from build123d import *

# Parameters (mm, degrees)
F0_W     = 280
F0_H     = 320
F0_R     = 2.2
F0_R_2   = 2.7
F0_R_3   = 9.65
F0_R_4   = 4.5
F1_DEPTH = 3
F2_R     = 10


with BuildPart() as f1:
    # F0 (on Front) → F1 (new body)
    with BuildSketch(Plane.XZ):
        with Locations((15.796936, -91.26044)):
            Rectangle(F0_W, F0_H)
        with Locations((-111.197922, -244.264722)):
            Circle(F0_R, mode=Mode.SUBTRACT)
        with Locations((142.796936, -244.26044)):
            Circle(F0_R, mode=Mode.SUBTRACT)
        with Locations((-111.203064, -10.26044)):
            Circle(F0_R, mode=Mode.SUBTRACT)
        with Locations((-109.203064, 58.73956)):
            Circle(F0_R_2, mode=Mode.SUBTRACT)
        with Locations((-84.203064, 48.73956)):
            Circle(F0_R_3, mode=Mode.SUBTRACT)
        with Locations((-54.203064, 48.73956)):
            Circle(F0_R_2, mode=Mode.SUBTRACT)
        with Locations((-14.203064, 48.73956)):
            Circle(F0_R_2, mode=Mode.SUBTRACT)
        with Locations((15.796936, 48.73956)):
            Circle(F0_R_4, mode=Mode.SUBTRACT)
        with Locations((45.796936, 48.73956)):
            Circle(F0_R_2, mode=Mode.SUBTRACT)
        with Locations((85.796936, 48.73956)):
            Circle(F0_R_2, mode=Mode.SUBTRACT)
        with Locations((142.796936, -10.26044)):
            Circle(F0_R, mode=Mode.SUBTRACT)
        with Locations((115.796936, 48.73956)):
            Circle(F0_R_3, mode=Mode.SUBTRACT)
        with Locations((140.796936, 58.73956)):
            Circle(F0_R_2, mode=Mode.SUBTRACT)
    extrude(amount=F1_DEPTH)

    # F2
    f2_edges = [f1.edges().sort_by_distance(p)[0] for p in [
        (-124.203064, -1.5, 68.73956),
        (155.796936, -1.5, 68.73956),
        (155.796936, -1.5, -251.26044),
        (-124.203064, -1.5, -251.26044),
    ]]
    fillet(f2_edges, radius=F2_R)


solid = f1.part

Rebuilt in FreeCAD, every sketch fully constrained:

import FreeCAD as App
import Part
import Sketcher
from FreeCAD import Vector


def edges_at(feature, points):
    """Names of the edges that pass closest to the given points."""
    edges = feature.Shape.Edges
    near = lambda p: min(range(len(edges)), key=lambda i: edges[i].distToShape(Part.Vertex(*p))[0])
    return sorted({f"Edge{near(p) + 1}" for p in points})

doc = App.newDocument("Part")
params = doc.addObject("Spreadsheet::Sheet", "Params")
for row, (alias, value) in enumerate([
    ("sketch1_diameter", "9 mm"),
    ("sketch1_diameter2", "4.4 mm"),
    ("sketch1_diameter3", "5.4 mm"),
    ("sketch1_diameter4", "19.3 mm"),
    ("sketch1_width", "280 mm"),
    ("pad1_length", "3 mm"),
    ("fillet_radius", "10 mm"),
], start=1):
    params.set(f"A{row}", alias)
    params.set(f"B{row}", "=" + value)
    params.setAlias(f"B{row}", alias)

body = doc.addObject("PartDesign::Body", "Body")

# Sketch on XZ plane
sketch1 = doc.addObject("Sketcher::SketchObject", "Sketch")
body.addObject(sketch1)
sketch1.AttachmentSupport = (doc.XZ_Plane, [""])
sketch1.MapMode = "FlatFace"
sketch1.addGeometry([
    Part.LineSegment(Vector(-124.2, 68.7, 0), Vector(-124.2, -251.3, 0)),  # 0
    Part.LineSegment(Vector(-124.2, -251.3, 0), Vector(155.8, -251.3, 0)),  # 1
    Part.LineSegment(Vector(155.8, -251.3, 0), Vector(155.8, 68.7, 0)),  # 2
    Part.LineSegment(Vector(155.8, 68.7, 0), Vector(-124.2, 68.7, 0)),  # 3
    Part.Circle(Vector(-111.2, -244.3, 0), Vector(0, 0, 1), 2.2),  # 4
    Part.Circle(Vector(142.8, -244.3, 0), Vector(0, 0, 1), 2.2),  # 5
    Part.Circle(Vector(-111.2, -10.3, 0), Vector(0, 0, 1), 2.2),  # 6
    Part.Circle(Vector(-109.2, 58.7, 0), Vector(0, 0, 1), 2.7),  # 7
    Part.Circle(Vector(-84.2, 48.7, 0), Vector(0, 0, 1), 9.7),  # 8
    Part.Circle(Vector(-54.2, 48.7, 0), Vector(0, 0, 1), 2.7),  # 9
    Part.Circle(Vector(-14.2, 48.7, 0), Vector(0, 0, 1), 2.7),  # 10
    Part.Circle(Vector(15.8, 48.7, 0), Vector(0, 0, 1), 4.5),  # 11
    Part.Circle(Vector(45.8, 48.7, 0), Vector(0, 0, 1), 2.7),  # 12
    Part.Circle(Vector(142.8, -10.3, 0), Vector(0, 0, 1), 2.2),  # 13
    Part.Circle(Vector(85.8, 48.7, 0), Vector(0, 0, 1), 2.7),  # 14
    Part.Circle(Vector(115.8, 48.7, 0), Vector(0, 0, 1), 9.7),  # 15
    Part.Circle(Vector(140.8, 58.7, 0), Vector(0, 0, 1), 2.7),  # 16
], False)
sketch1.addConstraint([
    Sketcher.Constraint("Coincident", 0, 2, 1, 1),
    Sketcher.Constraint("Coincident", 1, 2, 2, 1),
    Sketcher.Constraint("Coincident", 2, 2, 3, 1),
    Sketcher.Constraint("Coincident", 3, 2, 0, 1),
    Sketcher.Constraint("Vertical", 0),
    Sketcher.Constraint("Horizontal", 1),
    Sketcher.Constraint("Vertical", 2),
    Sketcher.Constraint("Horizontal", 3),
    Sketcher.Constraint("Equal", 4, 5),
    Sketcher.Constraint("Equal", 5, 6),
    Sketcher.Constraint("Equal", 7, 9),
    Sketcher.Constraint("Equal", 9, 10),
    Sketcher.Constraint("Equal", 10, 12),
    Sketcher.Constraint("Equal", 6, 13),
    Sketcher.Constraint("Equal", 12, 14),
    Sketcher.Constraint("Equal", 8, 15),
    Sketcher.Constraint("Equal", 14, 16),
    Sketcher.Constraint("Horizontal", 8, 3, 9, 3),
    Sketcher.Constraint("Horizontal", 9, 3, 10, 3),
    Sketcher.Constraint("Horizontal", 10, 3, 11, 3),
    Sketcher.Constraint("Horizontal", 11, 3, 12, 3),
    Sketcher.Constraint("Horizontal", 6, 3, 13, 3),
    Sketcher.Constraint("Horizontal", 12, 3, 14, 3),
    Sketcher.Constraint("Horizontal", 14, 3, 15, 3),
    Sketcher.Constraint("Horizontal", 7, 3, 16, 3),
    Sketcher.Constraint("Vertical", 5, 3, 13, 3),
    Sketcher.Constraint("Diameter", 11, 9.0),
    Sketcher.Constraint("Diameter", 4, 4.4),
    Sketcher.Constraint("Diameter", 7, 5.4),
    Sketcher.Constraint("Diameter", 8, 19.3),
    Sketcher.Constraint("DistanceX", 1, 1, 1, 2, 280.0),
    Sketcher.Constraint("DistanceY", 0, 2, 0, 1, 320.0),
    Sketcher.Constraint("DistanceX", 6, 3, 5, 3, 254.0),
    Sketcher.Constraint("DistanceY", 5, 3, 6, 3, 234.0),
    Sketcher.Constraint("DistanceX", 6, 3, 7, 3, 2.0),
    Sketcher.Constraint("DistanceY", 6, 3, 7, 3, 69.0),
    Sketcher.Constraint("DistanceX", 7, 3, 8, 3, 25.0),
    Sketcher.Constraint("DistanceY", 8, 3, 7, 3, 10.0),
    Sketcher.Constraint("DistanceX", 8, 3, 9, 3, 30.0),
    Sketcher.Constraint("DistanceX", 9, 3, 10, 3, 40.0),
    Sketcher.Constraint("DistanceX", 10, 3, 11, 3, 30.0),
    Sketcher.Constraint("DistanceX", 11, 3, 12, 3, 30.0),
    Sketcher.Constraint("DistanceX", 12, 3, 14, 3, 40.0),
    Sketcher.Constraint("DistanceX", 14, 3, 15, 3, 30.0),
    Sketcher.Constraint("DistanceX", 15, 3, 16, 3, 25.0),
    Sketcher.Constraint("DistanceX", 0, 2, 6, 3, 13.0),
    Sketcher.Constraint("DistanceY", 0, 2, 6, 3, 241.0),
    Sketcher.Constraint("DistanceY", 4, 3, -1, 1, 244.264722),
    Sketcher.Constraint("DistanceY", 5, 3, -1, 1, 244.26044),
    Sketcher.Constraint("DistanceX", 4, 3, 5, 3, 253.994858),
    Sketcher.Constraint("DistanceX", 4, 3, -1, 1, 111.197922),
])
sketch1.setExpression("Constraints[26]", "Params.sketch1_diameter")
sketch1.setExpression("Constraints[27]", "Params.sketch1_diameter2")
sketch1.setExpression("Constraints[28]", "Params.sketch1_diameter3")
sketch1.setExpression("Constraints[29]", "Params.sketch1_diameter4")
sketch1.setExpression("Constraints[30]", "Params.sketch1_width")
pad1 = doc.addObject("PartDesign::Pad", "Pad")
body.addObject(pad1)
pad1.Profile = sketch1
pad1.setExpression("Length", "Params.pad1_length")
doc.recompute()

fillet = doc.addObject("PartDesign::Fillet", "Fillet")
body.addObject(fillet)
fillet.Base = (pad1, edges_at(pad1, [
    (-124.203, -1.5, 68.74),
    (155.797, -1.5, 68.74),
    (155.797, -1.5, -251.26),
    (-124.203, -1.5, -251.26),
]))
fillet.setExpression("Radius", "Params.fillet_radius")

doc.recompute()
